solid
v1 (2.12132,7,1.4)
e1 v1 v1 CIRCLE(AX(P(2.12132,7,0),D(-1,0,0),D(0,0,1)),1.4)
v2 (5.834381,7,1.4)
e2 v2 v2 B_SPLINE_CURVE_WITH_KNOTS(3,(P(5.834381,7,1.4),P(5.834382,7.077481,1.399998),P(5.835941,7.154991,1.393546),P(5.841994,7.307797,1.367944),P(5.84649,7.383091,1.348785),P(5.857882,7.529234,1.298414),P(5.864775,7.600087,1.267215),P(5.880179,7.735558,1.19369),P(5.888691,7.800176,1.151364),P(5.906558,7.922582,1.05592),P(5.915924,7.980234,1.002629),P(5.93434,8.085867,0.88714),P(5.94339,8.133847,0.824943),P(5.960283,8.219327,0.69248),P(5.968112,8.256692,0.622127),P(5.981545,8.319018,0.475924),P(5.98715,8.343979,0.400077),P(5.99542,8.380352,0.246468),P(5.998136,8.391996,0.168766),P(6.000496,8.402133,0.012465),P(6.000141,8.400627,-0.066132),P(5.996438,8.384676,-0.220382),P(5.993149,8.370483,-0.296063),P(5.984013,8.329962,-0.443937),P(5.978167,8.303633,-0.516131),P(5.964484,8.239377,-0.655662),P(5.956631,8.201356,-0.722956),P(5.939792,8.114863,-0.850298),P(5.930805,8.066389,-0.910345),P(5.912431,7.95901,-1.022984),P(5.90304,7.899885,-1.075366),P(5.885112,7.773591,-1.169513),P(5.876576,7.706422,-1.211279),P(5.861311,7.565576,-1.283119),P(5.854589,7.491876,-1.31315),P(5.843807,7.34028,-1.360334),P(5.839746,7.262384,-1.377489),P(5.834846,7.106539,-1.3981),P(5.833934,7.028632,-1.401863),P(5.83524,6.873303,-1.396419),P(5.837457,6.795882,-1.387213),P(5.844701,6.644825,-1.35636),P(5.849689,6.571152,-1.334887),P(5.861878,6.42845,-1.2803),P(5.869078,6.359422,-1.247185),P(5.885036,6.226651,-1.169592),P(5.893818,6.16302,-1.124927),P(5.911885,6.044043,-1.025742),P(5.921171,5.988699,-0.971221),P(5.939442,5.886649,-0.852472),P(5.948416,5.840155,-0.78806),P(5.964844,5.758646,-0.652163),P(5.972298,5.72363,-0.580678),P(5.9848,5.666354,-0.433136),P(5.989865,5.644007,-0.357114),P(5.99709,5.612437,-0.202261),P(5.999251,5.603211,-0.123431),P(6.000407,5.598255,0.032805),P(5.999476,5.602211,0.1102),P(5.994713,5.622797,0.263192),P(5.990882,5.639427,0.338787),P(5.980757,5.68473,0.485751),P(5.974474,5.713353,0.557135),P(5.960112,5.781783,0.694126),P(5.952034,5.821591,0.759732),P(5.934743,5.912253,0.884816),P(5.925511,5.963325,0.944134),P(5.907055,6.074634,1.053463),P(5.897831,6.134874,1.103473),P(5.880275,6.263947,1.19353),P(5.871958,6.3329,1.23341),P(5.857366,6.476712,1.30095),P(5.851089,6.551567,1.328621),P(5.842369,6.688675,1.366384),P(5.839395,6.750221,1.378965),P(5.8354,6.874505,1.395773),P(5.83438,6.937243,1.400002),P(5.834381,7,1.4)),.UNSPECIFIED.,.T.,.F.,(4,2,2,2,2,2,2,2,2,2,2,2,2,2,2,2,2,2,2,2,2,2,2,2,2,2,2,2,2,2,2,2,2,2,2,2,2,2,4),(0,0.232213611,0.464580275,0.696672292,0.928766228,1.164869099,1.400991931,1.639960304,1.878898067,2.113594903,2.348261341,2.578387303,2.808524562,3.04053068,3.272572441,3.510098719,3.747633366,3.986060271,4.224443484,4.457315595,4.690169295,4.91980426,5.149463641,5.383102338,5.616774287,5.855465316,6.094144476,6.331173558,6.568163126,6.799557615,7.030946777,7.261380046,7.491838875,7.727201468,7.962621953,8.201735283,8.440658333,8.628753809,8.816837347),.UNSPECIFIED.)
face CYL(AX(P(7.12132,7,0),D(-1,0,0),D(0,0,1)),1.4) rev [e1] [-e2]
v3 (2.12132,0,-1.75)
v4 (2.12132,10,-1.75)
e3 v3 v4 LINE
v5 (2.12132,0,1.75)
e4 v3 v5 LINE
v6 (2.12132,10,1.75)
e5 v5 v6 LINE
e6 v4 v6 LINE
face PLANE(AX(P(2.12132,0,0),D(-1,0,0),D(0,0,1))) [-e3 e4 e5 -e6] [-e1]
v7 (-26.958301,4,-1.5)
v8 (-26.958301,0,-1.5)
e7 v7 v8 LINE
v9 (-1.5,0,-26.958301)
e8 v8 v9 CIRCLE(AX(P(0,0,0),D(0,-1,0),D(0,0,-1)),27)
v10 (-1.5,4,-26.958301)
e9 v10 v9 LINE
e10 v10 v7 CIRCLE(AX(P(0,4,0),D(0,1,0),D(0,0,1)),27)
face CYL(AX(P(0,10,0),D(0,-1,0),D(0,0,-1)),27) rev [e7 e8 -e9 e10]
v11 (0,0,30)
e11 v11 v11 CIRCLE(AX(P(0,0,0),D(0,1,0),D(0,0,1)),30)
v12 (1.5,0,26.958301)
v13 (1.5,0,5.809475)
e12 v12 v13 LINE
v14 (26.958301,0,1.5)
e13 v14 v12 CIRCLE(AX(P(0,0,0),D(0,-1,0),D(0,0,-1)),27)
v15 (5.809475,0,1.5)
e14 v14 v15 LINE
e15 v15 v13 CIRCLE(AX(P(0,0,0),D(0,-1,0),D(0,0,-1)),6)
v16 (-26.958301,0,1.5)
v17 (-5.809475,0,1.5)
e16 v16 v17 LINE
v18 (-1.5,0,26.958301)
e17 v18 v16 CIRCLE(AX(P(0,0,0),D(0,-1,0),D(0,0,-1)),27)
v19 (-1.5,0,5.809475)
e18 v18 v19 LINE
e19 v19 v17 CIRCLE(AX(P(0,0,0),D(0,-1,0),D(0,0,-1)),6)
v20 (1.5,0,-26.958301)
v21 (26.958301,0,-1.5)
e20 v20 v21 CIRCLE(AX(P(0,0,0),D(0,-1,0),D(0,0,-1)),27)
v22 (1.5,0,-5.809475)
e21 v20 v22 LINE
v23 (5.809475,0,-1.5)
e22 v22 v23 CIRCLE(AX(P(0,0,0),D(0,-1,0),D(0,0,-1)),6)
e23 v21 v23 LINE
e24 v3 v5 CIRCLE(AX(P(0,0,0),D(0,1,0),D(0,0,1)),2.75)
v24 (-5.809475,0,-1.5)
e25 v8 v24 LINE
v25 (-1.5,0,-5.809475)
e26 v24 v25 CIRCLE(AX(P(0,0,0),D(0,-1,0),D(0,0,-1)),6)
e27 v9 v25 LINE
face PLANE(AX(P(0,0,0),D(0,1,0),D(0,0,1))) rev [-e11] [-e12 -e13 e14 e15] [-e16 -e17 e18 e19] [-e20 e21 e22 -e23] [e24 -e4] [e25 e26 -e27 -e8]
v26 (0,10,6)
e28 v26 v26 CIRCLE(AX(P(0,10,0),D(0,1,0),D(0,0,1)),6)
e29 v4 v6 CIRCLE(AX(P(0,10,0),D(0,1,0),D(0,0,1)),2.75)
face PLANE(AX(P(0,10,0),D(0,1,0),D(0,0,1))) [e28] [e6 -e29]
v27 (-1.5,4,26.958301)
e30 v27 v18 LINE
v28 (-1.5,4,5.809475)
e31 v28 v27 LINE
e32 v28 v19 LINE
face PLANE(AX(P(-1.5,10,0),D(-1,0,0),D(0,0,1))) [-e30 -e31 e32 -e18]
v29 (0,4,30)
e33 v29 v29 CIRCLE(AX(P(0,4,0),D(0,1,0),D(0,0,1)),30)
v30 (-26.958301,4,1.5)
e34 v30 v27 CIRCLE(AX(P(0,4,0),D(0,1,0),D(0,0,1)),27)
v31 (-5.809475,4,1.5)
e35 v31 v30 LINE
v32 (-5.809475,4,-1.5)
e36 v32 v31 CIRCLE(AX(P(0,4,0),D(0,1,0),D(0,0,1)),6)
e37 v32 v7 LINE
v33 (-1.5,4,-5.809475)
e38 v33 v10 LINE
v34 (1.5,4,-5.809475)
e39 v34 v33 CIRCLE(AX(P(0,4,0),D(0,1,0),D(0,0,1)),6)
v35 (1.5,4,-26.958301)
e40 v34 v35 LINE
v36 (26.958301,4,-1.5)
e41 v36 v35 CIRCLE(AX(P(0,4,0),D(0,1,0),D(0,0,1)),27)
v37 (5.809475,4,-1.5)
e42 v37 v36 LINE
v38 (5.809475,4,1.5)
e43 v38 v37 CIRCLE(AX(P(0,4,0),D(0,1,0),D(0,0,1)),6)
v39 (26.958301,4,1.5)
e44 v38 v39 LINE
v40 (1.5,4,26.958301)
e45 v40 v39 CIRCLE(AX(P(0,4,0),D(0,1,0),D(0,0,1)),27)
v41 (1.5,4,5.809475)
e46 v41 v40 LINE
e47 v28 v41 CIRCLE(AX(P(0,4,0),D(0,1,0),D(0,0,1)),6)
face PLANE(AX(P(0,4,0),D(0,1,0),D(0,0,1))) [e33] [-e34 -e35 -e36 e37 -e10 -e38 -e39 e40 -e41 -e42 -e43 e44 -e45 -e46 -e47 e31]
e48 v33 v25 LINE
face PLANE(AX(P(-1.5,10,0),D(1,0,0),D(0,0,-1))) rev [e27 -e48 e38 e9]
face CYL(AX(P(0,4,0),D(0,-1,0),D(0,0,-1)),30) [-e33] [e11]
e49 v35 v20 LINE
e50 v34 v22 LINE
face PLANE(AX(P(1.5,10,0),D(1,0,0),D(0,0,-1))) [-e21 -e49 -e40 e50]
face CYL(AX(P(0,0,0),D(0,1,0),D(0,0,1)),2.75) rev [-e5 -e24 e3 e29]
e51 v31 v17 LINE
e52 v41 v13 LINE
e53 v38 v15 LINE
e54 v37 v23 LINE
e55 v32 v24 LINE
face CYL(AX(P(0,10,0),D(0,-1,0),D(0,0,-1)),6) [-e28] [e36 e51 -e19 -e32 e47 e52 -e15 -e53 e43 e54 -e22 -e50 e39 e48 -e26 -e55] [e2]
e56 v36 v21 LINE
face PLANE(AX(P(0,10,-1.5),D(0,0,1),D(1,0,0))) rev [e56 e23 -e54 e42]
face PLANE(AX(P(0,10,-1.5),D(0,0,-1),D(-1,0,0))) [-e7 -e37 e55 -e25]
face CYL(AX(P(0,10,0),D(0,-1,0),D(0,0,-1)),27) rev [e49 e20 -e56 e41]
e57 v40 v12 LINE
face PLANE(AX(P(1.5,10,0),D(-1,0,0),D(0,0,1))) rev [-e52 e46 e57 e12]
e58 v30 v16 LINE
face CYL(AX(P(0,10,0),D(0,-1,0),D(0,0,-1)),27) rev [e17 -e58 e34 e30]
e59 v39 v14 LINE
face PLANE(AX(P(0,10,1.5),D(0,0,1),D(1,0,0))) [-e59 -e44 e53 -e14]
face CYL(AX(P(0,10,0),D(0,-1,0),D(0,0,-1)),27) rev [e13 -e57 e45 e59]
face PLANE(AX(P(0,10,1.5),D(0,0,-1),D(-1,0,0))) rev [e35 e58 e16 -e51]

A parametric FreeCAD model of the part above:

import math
import FreeCAD as App
import Part
import Sketcher
Q = App.Units.Quantity

doc = App.newDocument("Part")
body = doc.addObject("PartDesign::Body", "Body")

sketch1 = body.newObject("Sketcher::SketchObject", "Sketch")
sketch1.AttachmentSupport = (doc.getObject("XZ_Plane"), [""])
sketch1.MapMode = "FlatFace"
sketch1.addGeometry(Part.Circle(App.Vector(0, 0, 0), App.Vector(0, 0, 1), 30), False)
sketch1.addConstraint([
    Sketcher.Constraint("Coincident", 0, 3, -1, 1),
    Sketcher.Constraint("Diameter", 0, Q("60 mm")),
])
pad1 = body.newObject("PartDesign::Pad", "Pad")
pad1.Profile = sketch1
pad1.Length = 4
pad1.Reversed = True

sketch2 = body.newObject("Sketcher::SketchObject", "Sketch001")
sketch2.AttachmentSupport = (doc.getObject("XZ_Plane"), [""])
sketch2.MapMode = "FlatFace"
sketch2.AttachmentOffset = App.Placement(App.Vector(0, 0, -4), App.Rotation())
sketch2.addGeometry(Part.Circle(App.Vector(0, 0, 0), App.Vector(0, 0, 1), 6), False)
sketch2.addConstraint([
    Sketcher.Constraint("Coincident", 0, 3, -1, 1),
    Sketcher.Constraint("Diameter", 0, Q("12 mm")),
])
pad2 = body.newObject("PartDesign::Pad", "Pad001")
pad2.Profile = sketch2
pad2.Length = 6
pad2.Reversed = True

sketch3 = body.newObject("Sketcher::SketchObject", "Sketch002")
sketch3.AttachmentSupport = (doc.getObject("XZ_Plane"), [""])
sketch3.MapMode = "FlatFace"
sketch3.AttachmentOffset = App.Placement(App.Vector(0, 0, -10), App.Rotation())
sketch3.addGeometry([
    Part.LineSegment(App.Vector(2.1, 1.8, 0), App.Vector(2.1, -1.8, 0)),
    Part.ArcOfCircle(Part.Circle(App.Vector(0, 0, 0), App.Vector(0, 0, 1), 2.8), math.radians(40), math.radians(320)),
], False)
sketch3.addConstraint([
    Sketcher.Constraint("Coincident", 0, 1, 1, 1),
    Sketcher.Constraint("Coincident", 1, 2, 0, 2),
    Sketcher.Constraint("Vertical", 0),
    Sketcher.Constraint("Coincident", 1, 3, -1, 1),
    Sketcher.Constraint("Radius", 1, Q("2.75 mm")),
    Sketcher.Constraint("DistanceY", 0, 2, 0, 1, Q("3.5 mm")),
])
pocket1 = body.newObject("PartDesign::Pocket", "Pocket")
pocket1.Profile = sketch3
pocket1.Type = "ThroughAll"
pocket1.Reversed = True

sketch4 = body.newObject("Sketcher::SketchObject", "Sketch003")
sketch4.AttachmentSupport = (doc.getObject("YZ_Plane"), [""])
sketch4.MapMode = "FlatFace"
sketch4.AttachmentOffset = App.Placement(App.Vector(0, 0, 2.12132), App.Rotation())
sketch4.addGeometry(Part.Circle(App.Vector(7, 0, 0), App.Vector(0, 0, 1), 1.4), False)
sketch4.addConstraint([
    Sketcher.Constraint("PointOnObject", 0, 3, -1),
    Sketcher.Constraint("Diameter", 0, Q("2.8 mm")),
    Sketcher.Constraint("DistanceX", -1, 1, 0, 3, Q("7 mm")),
])
pocket2 = body.newObject("PartDesign::Pocket", "Pocket001")
pocket2.Profile = sketch4
pocket2.Length = 5
pocket2.Reversed = True

sketch5 = body.newObject("Sketcher::SketchObject", "Sketch004")
sketch5.AttachmentSupport = (doc.getObject("XZ_Plane"), [""])
sketch5.MapMode = "FlatFace"
sketch5.addGeometry([
    Part.ArcOfCircle(Part.Circle(App.Vector(0, 0, 0), App.Vector(0, 0, 1), 27), math.radians(93), math.radians(177)),
    Part.LineSegment(App.Vector(-27, 2, 0), App.Vector(-6, 2, 0)),
    Part.ArcOfCircle(Part.Circle(App.Vector(0, 0, 0), App.Vector(0, 0, 1), 6), math.radians(104), math.radians(166)),
    Part.LineSegment(App.Vector(-2, 6, 0), App.Vector(-2, 27, 0)),
    Part.ArcOfCircle(Part.Circle(App.Vector(0, 0, 0), App.Vector(0, 0, 1), 27), math.radians(3), math.radians(87)),
    Part.LineSegment(App.Vector(2, 27, 0), App.Vector(2, 6, 0)),
    Part.ArcOfCircle(Part.Circle(App.Vector(0, 0, 0), App.Vector(0, 0, 1), 6), math.radians(14), math.radians(76)),
    Part.LineSegment(App.Vector(6, 2, 0), App.Vector(27, 2, 0)),
    Part.LineSegment(App.Vector(2, -6, 0), App.Vector(2, -27, 0)),
    Part.ArcOfCircle(Part.Circle(App.Vector(0, 0, 0), App.Vector(0, 0, 1), 27), math.radians(-87), math.radians(-3)),
    Part.LineSegment(App.Vector(27, -2, 0), App.Vector(6, -2, 0)),
    Part.ArcOfCircle(Part.Circle(App.Vector(0, 0, 0), App.Vector(0, 0, 1), 6), math.radians(-76), math.radians(-14)),
    Part.LineSegment(App.Vector(-6, -2, 0), App.Vector(-27, -2, 0)),
    Part.ArcOfCircle(Part.Circle(App.Vector(0, 0, 0), App.Vector(0, 0, 1), 27), math.radians(-177), math.radians(-93)),
    Part.LineSegment(App.Vector(-2, -27, 0), App.Vector(-2, -6, 0)),
    Part.ArcOfCircle(Part.Circle(App.Vector(0, 0, 0), App.Vector(0, 0, 1), 6), math.radians(-166), math.radians(-104)),
], False)
sketch5.addConstraint([
    Sketcher.Constraint("Coincident", 0, 2, 1, 1),
    Sketcher.Constraint("Coincident", 1, 2, 2, 2),
    Sketcher.Constraint("Coincident", 2, 1, 3, 1),
    Sketcher.Constraint("Coincident", 3, 2, 0, 1),
    Sketcher.Constraint("Coincident", 4, 2, 5, 1),
    Sketcher.Constraint("Coincident", 5, 2, 6, 2),
    Sketcher.Constraint("Coincident", 6, 1, 7, 1),
    Sketcher.Constraint("Coincident", 7, 2, 4, 1),
    Sketcher.Constraint("Coincident", 8, 2, 9, 1),
    Sketcher.Constraint("Coincident", 9, 2, 10, 1),
    Sketcher.Constraint("Coincident", 10, 2, 11, 2),
    Sketcher.Constraint("Coincident", 11, 1, 8, 1),
    Sketcher.Constraint("Coincident", 12, 2, 13, 1),
    Sketcher.Constraint("Coincident", 13, 2, 14, 1),
    Sketcher.Constraint("Coincident", 14, 2, 15, 2),
    Sketcher.Constraint("Coincident", 15, 1, 12, 1),
    Sketcher.Constraint("Horizontal", 1),
    Sketcher.Constraint("Vertical", 3),
    Sketcher.Constraint("Vertical", 5),
    Sketcher.Constraint("Horizontal", 7),
    Sketcher.Constraint("Vertical", 8),
    Sketcher.Constraint("Horizontal", 10),
    Sketcher.Constraint("Horizontal", 12),
    Sketcher.Constraint("Vertical", 14),
    Sketcher.Constraint("Coincident", 0, 3, -1, 1),
    Sketcher.Constraint("Coincident", 2, 3, -1, 1),
    Sketcher.Constraint("Coincident", 4, 3, -1, 1),
    Sketcher.Constraint("Coincident", 6, 3, -1, 1),
    Sketcher.Constraint("Coincident", 9, 3, -1, 1),
    Sketcher.Constraint("Coincident", 11, 3, -1, 1),
    Sketcher.Constraint("Coincident", 13, 3, -1, 1),
    Sketcher.Constraint("Coincident", 15, 3, -1, 1),
    Sketcher.Constraint("Equal", 0, 4),
    Sketcher.Constraint("Equal", 2, 6),
    Sketcher.Constraint("Equal", 4, 9),
    Sketcher.Constraint("Equal", 6, 11),
    Sketcher.Constraint("Equal", 9, 13),
    Sketcher.Constraint("Equal", 11, 15),
    Sketcher.Constraint("Horizontal", 3, 2, 4, 2),
    Sketcher.Constraint("Horizontal", 1, 2, 6, 1),
    Sketcher.Constraint("Horizontal", 10, 2, 12, 2),
    Sketcher.Constraint("Horizontal", 8, 2, 13, 2),
    Sketcher.Constraint("Vertical", 5, 2, 8, 2),
    Sketcher.Constraint("Vertical", 7, 2, 9, 2),
    Sketcher.Constraint("Equal", 12, 3),
    Sketcher.Constraint("Radius", 0, Q("27 mm")),
    Sketcher.Constraint("Radius", 2, Q("6 mm")),
    Sketcher.Constraint("DistanceX", 3, 2, 4, 2, Q("3 mm")),
])
pocket3 = body.newObject("PartDesign::Pocket", "Pocket002")
pocket3.Profile = sketch5
pocket3.Type = "ThroughAll"

doc.recompute()
